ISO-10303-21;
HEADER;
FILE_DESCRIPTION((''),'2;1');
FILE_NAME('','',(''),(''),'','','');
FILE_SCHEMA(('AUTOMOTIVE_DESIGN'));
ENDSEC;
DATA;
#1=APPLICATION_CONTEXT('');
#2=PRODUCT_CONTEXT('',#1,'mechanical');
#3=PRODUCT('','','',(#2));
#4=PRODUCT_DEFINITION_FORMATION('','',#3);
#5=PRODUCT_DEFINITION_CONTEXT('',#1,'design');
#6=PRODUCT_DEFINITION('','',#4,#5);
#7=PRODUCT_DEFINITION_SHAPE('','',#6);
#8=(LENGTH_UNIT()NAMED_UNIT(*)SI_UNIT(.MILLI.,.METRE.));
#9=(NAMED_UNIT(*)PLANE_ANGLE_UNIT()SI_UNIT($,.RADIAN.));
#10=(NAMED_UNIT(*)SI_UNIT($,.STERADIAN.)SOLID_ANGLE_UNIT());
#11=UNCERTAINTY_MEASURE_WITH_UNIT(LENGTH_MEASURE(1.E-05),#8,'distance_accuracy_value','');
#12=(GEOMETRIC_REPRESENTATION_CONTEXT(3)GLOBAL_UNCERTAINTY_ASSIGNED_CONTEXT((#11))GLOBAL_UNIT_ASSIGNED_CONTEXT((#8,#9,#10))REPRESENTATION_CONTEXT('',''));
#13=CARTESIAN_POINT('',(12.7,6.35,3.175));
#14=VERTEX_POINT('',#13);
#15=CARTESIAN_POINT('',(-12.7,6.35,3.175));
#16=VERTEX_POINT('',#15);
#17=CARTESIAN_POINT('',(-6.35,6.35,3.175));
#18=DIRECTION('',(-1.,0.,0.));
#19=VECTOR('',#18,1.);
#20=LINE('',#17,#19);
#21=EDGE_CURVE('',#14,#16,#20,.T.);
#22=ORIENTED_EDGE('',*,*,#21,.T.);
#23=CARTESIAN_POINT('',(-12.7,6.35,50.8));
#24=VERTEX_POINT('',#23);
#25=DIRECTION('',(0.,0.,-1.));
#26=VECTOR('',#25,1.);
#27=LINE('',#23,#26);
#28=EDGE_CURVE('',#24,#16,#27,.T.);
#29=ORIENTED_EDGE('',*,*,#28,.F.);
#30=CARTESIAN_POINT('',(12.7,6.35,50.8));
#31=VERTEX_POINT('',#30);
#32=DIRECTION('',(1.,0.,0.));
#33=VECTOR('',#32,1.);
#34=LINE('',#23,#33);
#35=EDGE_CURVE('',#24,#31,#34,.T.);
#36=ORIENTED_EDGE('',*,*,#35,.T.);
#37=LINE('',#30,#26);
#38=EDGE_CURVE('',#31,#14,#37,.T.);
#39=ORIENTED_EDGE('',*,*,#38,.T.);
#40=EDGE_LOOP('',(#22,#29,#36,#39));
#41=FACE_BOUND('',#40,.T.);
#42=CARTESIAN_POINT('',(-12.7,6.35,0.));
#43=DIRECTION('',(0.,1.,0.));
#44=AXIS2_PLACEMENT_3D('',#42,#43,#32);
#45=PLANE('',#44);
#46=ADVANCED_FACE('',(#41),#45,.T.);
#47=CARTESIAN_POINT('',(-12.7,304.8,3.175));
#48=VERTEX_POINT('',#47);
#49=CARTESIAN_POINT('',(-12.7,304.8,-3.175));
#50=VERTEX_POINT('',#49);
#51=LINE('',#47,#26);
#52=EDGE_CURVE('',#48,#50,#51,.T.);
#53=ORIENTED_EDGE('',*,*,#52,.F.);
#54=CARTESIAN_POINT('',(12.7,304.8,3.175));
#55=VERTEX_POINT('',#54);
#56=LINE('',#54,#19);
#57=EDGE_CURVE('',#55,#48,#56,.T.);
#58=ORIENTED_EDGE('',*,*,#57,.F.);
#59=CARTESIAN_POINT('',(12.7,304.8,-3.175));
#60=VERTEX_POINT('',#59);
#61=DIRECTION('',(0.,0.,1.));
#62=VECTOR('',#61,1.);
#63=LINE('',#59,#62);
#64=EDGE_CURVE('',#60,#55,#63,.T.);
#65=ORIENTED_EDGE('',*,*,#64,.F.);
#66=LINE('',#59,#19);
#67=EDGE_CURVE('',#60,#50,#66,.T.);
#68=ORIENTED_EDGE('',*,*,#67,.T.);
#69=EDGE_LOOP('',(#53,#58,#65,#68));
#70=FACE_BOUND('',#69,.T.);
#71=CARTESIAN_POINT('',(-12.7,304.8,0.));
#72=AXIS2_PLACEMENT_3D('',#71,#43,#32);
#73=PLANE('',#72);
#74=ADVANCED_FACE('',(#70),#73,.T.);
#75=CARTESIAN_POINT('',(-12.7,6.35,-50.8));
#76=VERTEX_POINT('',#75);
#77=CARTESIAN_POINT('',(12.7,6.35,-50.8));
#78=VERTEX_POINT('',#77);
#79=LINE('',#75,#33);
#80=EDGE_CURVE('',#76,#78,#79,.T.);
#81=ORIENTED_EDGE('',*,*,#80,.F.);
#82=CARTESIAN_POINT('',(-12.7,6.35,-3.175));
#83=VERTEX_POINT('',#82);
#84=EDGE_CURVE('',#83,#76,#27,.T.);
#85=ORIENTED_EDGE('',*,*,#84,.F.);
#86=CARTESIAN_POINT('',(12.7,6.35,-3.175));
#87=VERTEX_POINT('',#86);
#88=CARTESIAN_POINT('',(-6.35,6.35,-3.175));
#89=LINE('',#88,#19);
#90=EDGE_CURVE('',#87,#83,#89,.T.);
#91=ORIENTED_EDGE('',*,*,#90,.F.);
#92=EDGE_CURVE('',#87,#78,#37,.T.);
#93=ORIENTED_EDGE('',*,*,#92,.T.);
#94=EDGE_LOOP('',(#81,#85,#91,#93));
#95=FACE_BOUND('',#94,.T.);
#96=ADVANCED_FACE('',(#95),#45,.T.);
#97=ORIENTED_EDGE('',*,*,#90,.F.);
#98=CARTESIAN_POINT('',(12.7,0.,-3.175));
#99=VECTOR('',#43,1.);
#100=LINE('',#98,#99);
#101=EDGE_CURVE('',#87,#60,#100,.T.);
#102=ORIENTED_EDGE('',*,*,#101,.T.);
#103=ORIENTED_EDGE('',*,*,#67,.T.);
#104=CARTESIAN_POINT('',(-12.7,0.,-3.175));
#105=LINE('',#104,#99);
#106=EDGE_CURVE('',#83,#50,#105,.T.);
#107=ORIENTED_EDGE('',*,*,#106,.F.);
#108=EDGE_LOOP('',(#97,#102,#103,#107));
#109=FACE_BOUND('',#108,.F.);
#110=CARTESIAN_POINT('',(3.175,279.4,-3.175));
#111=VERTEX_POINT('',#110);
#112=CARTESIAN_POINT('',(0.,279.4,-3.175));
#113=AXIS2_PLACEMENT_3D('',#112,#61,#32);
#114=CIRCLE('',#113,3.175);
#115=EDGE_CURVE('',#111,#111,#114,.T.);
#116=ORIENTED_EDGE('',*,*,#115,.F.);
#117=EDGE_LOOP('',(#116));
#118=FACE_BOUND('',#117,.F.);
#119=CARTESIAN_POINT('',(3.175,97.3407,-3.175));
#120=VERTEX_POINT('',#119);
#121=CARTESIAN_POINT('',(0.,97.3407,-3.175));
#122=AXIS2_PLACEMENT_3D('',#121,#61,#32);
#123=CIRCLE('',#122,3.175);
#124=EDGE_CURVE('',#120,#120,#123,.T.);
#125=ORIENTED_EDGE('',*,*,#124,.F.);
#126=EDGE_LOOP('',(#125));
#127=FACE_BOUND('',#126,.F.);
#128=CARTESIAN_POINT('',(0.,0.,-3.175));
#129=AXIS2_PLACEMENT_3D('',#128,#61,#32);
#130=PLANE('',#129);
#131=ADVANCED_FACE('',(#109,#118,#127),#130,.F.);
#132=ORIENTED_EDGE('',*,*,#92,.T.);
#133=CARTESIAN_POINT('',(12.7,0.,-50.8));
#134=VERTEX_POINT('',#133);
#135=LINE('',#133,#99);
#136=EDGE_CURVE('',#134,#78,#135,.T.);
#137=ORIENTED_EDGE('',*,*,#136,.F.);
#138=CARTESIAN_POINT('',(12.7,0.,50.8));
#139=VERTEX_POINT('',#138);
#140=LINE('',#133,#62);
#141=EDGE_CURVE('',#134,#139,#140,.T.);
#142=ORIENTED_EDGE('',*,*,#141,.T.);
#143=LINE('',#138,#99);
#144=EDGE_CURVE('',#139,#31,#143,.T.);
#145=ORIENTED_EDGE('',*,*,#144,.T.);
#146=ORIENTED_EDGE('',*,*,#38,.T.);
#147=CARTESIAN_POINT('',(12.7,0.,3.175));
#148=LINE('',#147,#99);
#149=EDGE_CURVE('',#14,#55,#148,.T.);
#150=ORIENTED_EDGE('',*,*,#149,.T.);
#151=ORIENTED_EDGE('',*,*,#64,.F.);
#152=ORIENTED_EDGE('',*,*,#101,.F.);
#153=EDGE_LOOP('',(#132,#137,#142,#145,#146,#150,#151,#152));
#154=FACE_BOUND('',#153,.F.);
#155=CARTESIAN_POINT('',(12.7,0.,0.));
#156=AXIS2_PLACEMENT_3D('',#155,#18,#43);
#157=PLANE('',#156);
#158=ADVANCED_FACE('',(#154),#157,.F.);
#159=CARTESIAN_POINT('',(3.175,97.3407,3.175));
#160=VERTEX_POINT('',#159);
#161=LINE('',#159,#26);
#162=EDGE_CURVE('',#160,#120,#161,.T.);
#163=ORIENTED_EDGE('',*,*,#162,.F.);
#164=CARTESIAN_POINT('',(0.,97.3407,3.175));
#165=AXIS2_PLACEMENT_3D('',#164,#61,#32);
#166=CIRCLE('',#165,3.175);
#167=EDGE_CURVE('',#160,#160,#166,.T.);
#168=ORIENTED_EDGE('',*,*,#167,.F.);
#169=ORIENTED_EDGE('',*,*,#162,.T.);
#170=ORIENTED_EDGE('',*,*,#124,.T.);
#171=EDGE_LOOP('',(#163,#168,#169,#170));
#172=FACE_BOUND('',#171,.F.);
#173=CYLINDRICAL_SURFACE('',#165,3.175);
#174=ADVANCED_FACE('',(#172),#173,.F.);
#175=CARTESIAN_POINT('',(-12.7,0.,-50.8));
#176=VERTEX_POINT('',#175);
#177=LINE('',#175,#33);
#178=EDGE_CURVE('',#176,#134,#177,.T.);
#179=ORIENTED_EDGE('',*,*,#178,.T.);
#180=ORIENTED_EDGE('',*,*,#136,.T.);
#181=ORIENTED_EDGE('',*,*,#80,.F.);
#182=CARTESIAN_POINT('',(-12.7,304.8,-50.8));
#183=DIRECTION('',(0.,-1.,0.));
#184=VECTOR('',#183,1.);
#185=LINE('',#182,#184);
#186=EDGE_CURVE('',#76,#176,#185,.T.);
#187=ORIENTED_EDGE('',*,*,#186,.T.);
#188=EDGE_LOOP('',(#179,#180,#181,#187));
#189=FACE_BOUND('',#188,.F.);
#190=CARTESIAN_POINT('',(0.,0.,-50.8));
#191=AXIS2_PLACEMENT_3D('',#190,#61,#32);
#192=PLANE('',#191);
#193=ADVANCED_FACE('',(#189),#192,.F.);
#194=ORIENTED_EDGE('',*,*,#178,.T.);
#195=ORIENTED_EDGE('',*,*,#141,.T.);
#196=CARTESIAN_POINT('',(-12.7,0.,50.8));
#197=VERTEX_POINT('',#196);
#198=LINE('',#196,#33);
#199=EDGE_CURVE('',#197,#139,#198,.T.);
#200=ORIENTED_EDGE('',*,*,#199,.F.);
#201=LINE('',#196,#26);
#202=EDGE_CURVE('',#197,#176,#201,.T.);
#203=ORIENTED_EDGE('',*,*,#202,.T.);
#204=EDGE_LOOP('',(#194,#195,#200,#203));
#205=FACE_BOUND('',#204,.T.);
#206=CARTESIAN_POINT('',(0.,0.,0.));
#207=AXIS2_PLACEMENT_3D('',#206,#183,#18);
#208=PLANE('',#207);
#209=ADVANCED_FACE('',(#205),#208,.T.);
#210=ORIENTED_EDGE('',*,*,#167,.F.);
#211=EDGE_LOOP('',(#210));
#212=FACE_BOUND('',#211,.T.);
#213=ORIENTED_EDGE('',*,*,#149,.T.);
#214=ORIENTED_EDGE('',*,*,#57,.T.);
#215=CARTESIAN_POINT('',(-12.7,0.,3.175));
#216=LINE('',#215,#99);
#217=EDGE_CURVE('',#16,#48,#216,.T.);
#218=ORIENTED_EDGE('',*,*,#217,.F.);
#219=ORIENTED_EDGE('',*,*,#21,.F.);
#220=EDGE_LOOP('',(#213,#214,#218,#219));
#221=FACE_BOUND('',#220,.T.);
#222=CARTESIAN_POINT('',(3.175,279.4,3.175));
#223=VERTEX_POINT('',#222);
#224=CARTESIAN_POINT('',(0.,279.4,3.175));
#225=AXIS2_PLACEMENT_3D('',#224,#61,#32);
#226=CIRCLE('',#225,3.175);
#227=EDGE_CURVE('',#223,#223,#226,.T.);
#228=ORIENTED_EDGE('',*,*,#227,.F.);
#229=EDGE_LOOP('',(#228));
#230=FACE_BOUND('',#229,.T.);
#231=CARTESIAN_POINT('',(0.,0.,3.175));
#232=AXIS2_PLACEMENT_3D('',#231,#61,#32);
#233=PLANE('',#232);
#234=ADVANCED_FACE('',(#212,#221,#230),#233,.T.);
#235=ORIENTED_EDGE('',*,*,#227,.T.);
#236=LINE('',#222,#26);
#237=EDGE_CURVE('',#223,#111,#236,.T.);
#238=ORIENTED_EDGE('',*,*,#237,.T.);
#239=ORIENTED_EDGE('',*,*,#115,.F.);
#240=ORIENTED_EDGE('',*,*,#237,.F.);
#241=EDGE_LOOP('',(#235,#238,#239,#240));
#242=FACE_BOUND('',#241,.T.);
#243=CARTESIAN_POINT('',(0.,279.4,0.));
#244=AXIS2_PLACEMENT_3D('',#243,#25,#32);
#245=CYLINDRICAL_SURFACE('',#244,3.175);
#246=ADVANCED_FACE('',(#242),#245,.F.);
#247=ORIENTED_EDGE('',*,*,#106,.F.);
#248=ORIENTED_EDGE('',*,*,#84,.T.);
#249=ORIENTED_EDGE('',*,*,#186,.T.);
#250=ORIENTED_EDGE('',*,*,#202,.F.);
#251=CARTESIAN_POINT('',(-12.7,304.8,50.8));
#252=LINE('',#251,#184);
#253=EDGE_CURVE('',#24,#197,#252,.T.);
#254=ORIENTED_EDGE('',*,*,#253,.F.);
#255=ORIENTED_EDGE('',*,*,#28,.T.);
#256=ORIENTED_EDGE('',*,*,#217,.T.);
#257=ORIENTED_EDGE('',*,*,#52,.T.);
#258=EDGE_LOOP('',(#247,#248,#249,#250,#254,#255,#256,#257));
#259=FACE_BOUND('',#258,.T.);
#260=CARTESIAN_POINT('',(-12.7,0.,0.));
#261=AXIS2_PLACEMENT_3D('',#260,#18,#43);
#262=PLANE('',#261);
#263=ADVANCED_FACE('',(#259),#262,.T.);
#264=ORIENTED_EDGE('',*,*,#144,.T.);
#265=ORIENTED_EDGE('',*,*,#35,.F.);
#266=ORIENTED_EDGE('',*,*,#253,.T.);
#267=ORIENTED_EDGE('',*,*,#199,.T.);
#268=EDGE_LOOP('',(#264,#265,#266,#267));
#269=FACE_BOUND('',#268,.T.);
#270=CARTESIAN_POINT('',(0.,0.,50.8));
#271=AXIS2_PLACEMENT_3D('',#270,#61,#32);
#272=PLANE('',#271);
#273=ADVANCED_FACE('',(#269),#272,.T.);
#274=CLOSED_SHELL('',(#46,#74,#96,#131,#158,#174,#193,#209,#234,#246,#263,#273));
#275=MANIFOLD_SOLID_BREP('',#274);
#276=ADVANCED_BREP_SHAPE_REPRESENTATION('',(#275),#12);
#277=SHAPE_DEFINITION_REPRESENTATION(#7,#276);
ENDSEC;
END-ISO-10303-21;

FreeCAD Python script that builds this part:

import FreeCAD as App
import Part
import Sketcher
Q = App.Units.Quantity


def add_polygon(sketch, points):
    """Adds a closed chain of lines whose ends are joined by coincident constraints."""
    first, n = sketch.GeometryCount, len(points)
    for a, b in zip(points, points[1:] + points[:1]):
        sketch.addGeometry(Part.LineSegment(App.Vector(*a, 0), App.Vector(*b, 0)), False)
    for i in range(n):
        sketch.addConstraint(Sketcher.Constraint("Coincident", first + i, 2, first + (i + 1) % n, 1))

doc = App.newDocument("Part")
params = doc.addObject("Spreadsheet::Sheet", "Params")
for row, (alias, value) in enumerate([
    ("sketch1_diameter", "0.25 in"),
    ("sketch1_width", "1 in"),
    ("sketch1_height", "12 in"),
    ("pad1_length", "0.25 in"),
    ("sketch2_height", "0.25 in"),
    ("sketch2_width", "1 in"),
    ("pad2_length", "4 in"),
    ("sketch3_diameter", "0.25 in"),
], start=1):
    params.set(f"A{row}", alias)
    params.set(f"B{row}", "=" + value)
    params.setAlias(f"B{row}", alias)

body = doc.addObject("PartDesign::Body", "Body")

sketch1 = body.newObject("Sketcher::SketchObject", "Sketch")
sketch1.AttachmentSupport = (doc.getObject("XY_Plane"), [""])
sketch1.MapMode = "FlatFace"
add_polygon(sketch1, [(-12.7, 0), (12.7, 0), (12.7, 304.8), (-12.7, 304.8)])
sketch1.addGeometry(Part.Circle(App.Vector(0, 279.4, 0), App.Vector(0, 0, 1), 3.175), False)
sketch1.addConstraint([
    Sketcher.Constraint("Horizontal", 0),
    Sketcher.Constraint("Vertical", 1),
    Sketcher.Constraint("Horizontal", 2),
    Sketcher.Constraint("Vertical", 3),
    Sketcher.Constraint("Symmetric", 0, 2, 3, 2, -1, 1),
    Sketcher.Constraint("PointOnObject", 4, 3, -2),
    Sketcher.Constraint("Diameter", 4, Q("0.25 in")),
    Sketcher.Constraint("DistanceX", 0, 1, 0, 2, Q("1 in")),
    Sketcher.Constraint("DistanceY", 1, 1, 1, 2, Q("12 in")),
    Sketcher.Constraint("DistanceY", -1, 1, 4, 3, Q("11 in")),
])
sketch1.setExpression("Constraints[10]", "Params.sketch1_diameter")
sketch1.setExpression("Constraints[11]", "Params.sketch1_width")
sketch1.setExpression("Constraints[12]", "Params.sketch1_height")
pad1 = body.newObject("PartDesign::Pad", "Pad")
pad1.Profile = sketch1
pad1.setExpression("Length", "Params.pad1_length")
pad1.Midplane = True

sketch2 = body.newObject("Sketcher::SketchObject", "Sketch001")
sketch2.AttachmentSupport = (doc.getObject("XY_Plane"), [""])
sketch2.MapMode = "FlatFace"
add_polygon(sketch2, [(-12.7, 6.35), (-12.7, 0), (12.7, 0), (12.7, 6.35)])
sketch2.addConstraint([
    Sketcher.Constraint("Vertical", 0),
    Sketcher.Constraint("Horizontal", 1),
    Sketcher.Constraint("Vertical", 2),
    Sketcher.Constraint("Horizontal", 3),
    Sketcher.Constraint("Symmetric", 0, 2, 1, 2, -1, 1),
    Sketcher.Constraint("DistanceY", 0, 2, 0, 1, Q("0.25 in")),
    Sketcher.Constraint("DistanceX", 1, 1, 1, 2, Q("1 in")),
])
sketch2.setExpression("Constraints[9]", "Params.sketch2_height")
sketch2.setExpression("Constraints[10]", "Params.sketch2_width")
pad2 = body.newObject("PartDesign::Pad", "Pad001")
pad2.Profile = sketch2
pad2.setExpression("Length", "Params.pad2_length")
pad2.Midplane = True

sketch3 = body.newObject("Sketcher::SketchObject", "Sketch002")
sketch3.AttachmentSupport = (doc.getObject("XY_Plane"), [""])
sketch3.MapMode = "FlatFace"
sketch3.AttachmentOffset = App.Placement(App.Vector(0, 0, 0.125 * 25.4), App.Rotation())
sketch3.addGeometry(Part.Circle(App.Vector(0, 97.3407, 0), App.Vector(0, 0, 1), 3.175), False)
sketch3.addConstraint([
    Sketcher.Constraint("PointOnObject", 0, 3, -2),
    Sketcher.Constraint("Diameter", 0, Q("0.25 in")),
    Sketcher.Constraint("DistanceY", -1, 1, 0, 3, Q("3.8323 in")),
])
sketch3.setExpression("Constraints[1]", "Params.sketch3_diameter")
pocket1 = body.newObject("PartDesign::Pocket", "Pocket")
pocket1.Profile = sketch3
pocket1.Type = "ThroughAll"

doc.recompute()
